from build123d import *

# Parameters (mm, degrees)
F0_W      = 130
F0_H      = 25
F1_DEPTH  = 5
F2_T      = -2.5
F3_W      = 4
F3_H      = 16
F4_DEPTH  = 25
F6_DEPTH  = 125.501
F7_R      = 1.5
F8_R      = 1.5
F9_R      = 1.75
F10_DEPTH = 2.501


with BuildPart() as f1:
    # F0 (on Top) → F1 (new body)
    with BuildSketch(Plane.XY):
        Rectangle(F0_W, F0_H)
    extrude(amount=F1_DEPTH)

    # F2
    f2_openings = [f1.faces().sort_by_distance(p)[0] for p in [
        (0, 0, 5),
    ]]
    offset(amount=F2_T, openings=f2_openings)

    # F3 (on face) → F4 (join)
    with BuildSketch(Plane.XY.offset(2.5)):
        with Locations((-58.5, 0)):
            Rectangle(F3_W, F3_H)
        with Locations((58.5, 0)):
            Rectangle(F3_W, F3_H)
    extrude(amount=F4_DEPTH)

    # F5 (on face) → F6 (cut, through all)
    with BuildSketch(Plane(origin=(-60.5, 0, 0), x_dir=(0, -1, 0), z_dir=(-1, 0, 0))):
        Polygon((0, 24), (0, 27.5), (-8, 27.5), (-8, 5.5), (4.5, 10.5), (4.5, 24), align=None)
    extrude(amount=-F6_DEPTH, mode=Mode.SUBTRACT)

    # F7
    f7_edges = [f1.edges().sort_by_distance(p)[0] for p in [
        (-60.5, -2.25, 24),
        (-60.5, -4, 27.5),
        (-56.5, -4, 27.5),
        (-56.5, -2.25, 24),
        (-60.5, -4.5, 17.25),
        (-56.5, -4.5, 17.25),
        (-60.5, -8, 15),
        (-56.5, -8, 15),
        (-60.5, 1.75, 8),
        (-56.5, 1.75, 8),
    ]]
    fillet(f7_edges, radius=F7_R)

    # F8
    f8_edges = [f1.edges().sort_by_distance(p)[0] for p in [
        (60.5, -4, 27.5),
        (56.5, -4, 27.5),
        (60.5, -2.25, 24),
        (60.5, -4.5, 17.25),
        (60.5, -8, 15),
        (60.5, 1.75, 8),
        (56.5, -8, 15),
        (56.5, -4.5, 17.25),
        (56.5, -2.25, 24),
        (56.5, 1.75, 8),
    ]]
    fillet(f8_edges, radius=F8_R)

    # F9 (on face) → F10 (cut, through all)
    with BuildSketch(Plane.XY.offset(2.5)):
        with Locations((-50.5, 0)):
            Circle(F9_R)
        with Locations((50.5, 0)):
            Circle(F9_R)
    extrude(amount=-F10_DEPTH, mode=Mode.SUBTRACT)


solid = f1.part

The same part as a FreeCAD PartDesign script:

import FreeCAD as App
import Part
import Sketcher
from FreeCAD import Vector


def edges_at(feature, points):
    """Names of the edges that pass closest to the given points."""
    edges = feature.Shape.Edges
    near = lambda p: min(range(len(edges)), key=lambda i: edges[i].distToShape(Part.Vertex(*p))[0])
    return sorted({f"Edge{near(p) + 1}" for p in points})


def faces_at(feature, points):
    """Names of the faces that lie closest to the given points."""
    faces = feature.Shape.Faces
    near = lambda p: min(range(len(faces)), key=lambda i: faces[i].distToShape(Part.Vertex(*p))[0])
    return sorted({f"Face{near(p) + 1}" for p in points})

doc = App.newDocument("Part")
body = doc.addObject("PartDesign::Body", "Body")

# Sketch on XY plane
sketch1 = body.newObject("Sketcher::SketchObject", "Sketch")
sketch1.AttachmentSupport = (doc.getObject("XY_Plane"), [""])
sketch1.MapMode = "FlatFace"
sketch1.addGeometry([
    Part.LineSegment(Vector(-65, 12, 0), Vector(-65, -12, 0)),
    Part.LineSegment(Vector(-65, -12, 0), Vector(65, -12, 0)),
    Part.LineSegment(Vector(65, -12, 0), Vector(65, 12, 0)),
    Part.LineSegment(Vector(65, 12, 0), Vector(-65, 12, 0)),
], False)
sketch1.addConstraint([
    Sketcher.Constraint("Coincident", 0, 2, 1, 1),
    Sketcher.Constraint("Coincident", 1, 2, 2, 1),
    Sketcher.Constraint("Coincident", 2, 2, 3, 1),
    Sketcher.Constraint("Coincident", 3, 2, 0, 1),
    Sketcher.Constraint("Vertical", 0),
    Sketcher.Constraint("Horizontal", 1),
    Sketcher.Constraint("Vertical", 2),
    Sketcher.Constraint("Horizontal", 3),
    Sketcher.Constraint("Symmetric", 0, 2, 2, 2, -1, 1),
    Sketcher.Constraint("DistanceX", 1, 1, 1, 2, 130.0),
    Sketcher.Constraint("DistanceY", 0, 2, 0, 1, 25.0),
])
pad1 = body.newObject("PartDesign::Pad", "Pad")
pad1.Profile = sketch1
pad1.Length = 5
doc.recompute()

thickness = body.newObject("PartDesign::Thickness", "Thickness")
thickness.Base = (pad1, faces_at(pad1, [(0, 0, 5)]))
thickness.Value = 2.5
thickness.Reversed = True
thickness.Join = "Arc"

# Sketch on XY plane
sketch2 = body.newObject("Sketcher::SketchObject", "Sketch001")
sketch2.AttachmentSupport = (doc.getObject("XY_Plane"), [""])
sketch2.MapMode = "FlatFace"
sketch2.AttachmentOffset = App.Placement(Vector(0, 0, 2.5), App.Rotation())
sketch2.addGeometry([
    Part.LineSegment(Vector(-60.5, 8, 0), Vector(-60.5, -8, 0)),  # 0
    Part.LineSegment(Vector(-60.5, -8, 0), Vector(-56.5, -8, 0)),  # 1
    Part.LineSegment(Vector(-56.5, -8, 0), Vector(-56.5, 8, 0)),  # 2
    Part.LineSegment(Vector(-56.5, 8, 0), Vector(-60.5, 8, 0)),  # 3
    Part.LineSegment(Vector(56.5, 8, 0), Vector(56.5, -8, 0)),  # 4
    Part.LineSegment(Vector(56.5, -8, 0), Vector(60.5, -8, 0)),  # 5
    Part.LineSegment(Vector(60.5, -8, 0), Vector(60.5, 8, 0)),  # 6
    Part.LineSegment(Vector(60.5, 8, 0), Vector(56.5, 8, 0)),  # 7
], False)
sketch2.addConstraint([
    Sketcher.Constraint("Coincident", 0, 2, 1, 1),
    Sketcher.Constraint("Coincident", 1, 2, 2, 1),
    Sketcher.Constraint("Coincident", 2, 2, 3, 1),
    Sketcher.Constraint("Coincident", 3, 2, 0, 1),
    Sketcher.Constraint("Coincident", 4, 2, 5, 1),
    Sketcher.Constraint("Coincident", 5, 2, 6, 1),
    Sketcher.Constraint("Coincident", 6, 2, 7, 1),
    Sketcher.Constraint("Coincident", 7, 2, 4, 1),
    Sketcher.Constraint("Vertical", 0),
    Sketcher.Constraint("Horizontal", 1),
    Sketcher.Constraint("Vertical", 2),
    Sketcher.Constraint("Horizontal", 3),
    Sketcher.Constraint("Vertical", 4),
    Sketcher.Constraint("Horizontal", 5),
    Sketcher.Constraint("Vertical", 6),
    Sketcher.Constraint("Horizontal", 7),
    Sketcher.Constraint("Symmetric", 2, 2, 4, 2, -1, 1),
    Sketcher.Constraint("Symmetric", 0, 2, 6, 2, -1, 1),
    Sketcher.Constraint("Horizontal", 1, 2, 4, 2),
    Sketcher.Constraint("DistanceX", 1, 1, 1, 2, 4.0),
    Sketcher.Constraint("DistanceY", 0, 2, 0, 1, 16.0),
    Sketcher.Constraint("DistanceX", 1, 2, 4, 2, 113.0),
])
pad2 = body.newObject("PartDesign::Pad", "Pad001")
pad2.Profile = sketch2
pad2.Length = 25

# Sketch on YZ plane
sketch3 = body.newObject("Sketcher::SketchObject", "Sketch002")
sketch3.AttachmentSupport = (doc.getObject("YZ_Plane"), [""])
sketch3.MapMode = "FlatFace"
sketch3.AttachmentOffset = App.Placement(Vector(0, 0, -60.5), App.Rotation())
sketch3.addGeometry([
    Part.LineSegment(Vector(0, 24, 0), Vector(0, 27.5, 0)),  # 0
    Part.LineSegment(Vector(0, 27.5, 0), Vector(8, 27.5, 0)),  # 1
    Part.LineSegment(Vector(8, 27.5, 0), Vector(8, 5.5, 0)),  # 2
    Part.LineSegment(Vector(8, 5.5, 0), Vector(-4.5, 10.5, 0)),  # 3
    Part.LineSegment(Vector(-4.5, 10.5, 0), Vector(-4.5, 24, 0)),  # 4
    Part.LineSegment(Vector(-4.5, 24, 0), Vector(0, 24, 0)),  # 5
], False)
sketch3.addConstraint([
    Sketcher.Constraint("Coincident", 0, 2, 1, 1),
    Sketcher.Constraint("Coincident", 1, 2, 2, 1),
    Sketcher.Constraint("Coincident", 2, 2, 3, 1),
    Sketcher.Constraint("Coincident", 3, 2, 4, 1),
    Sketcher.Constraint("Coincident", 4, 2, 5, 1),
    Sketcher.Constraint("Coincident", 5, 2, 0, 1),
    Sketcher.Constraint("Vertical", 0),
    Sketcher.Constraint("Horizontal", 1),
    Sketcher.Constraint("Vertical", 2),
    Sketcher.Constraint("Vertical", 4),
    Sketcher.Constraint("Horizontal", 5),
    Sketcher.Constraint("PointOnObject", 0, 2, -2),
    Sketcher.Constraint("DistanceX", 1, 1, 1, 2, 8.0),
    Sketcher.Constraint("DistanceY", 2, 2, 2, 1, 22.0),
    Sketcher.Constraint("DistanceX", 5, 1, 5, 2, 4.5),
    Sketcher.Constraint("DistanceY", 0, 1, 0, 2, 3.5),
    Sketcher.Constraint("DistanceY", 4, 1, 4, 2, 13.5),
    Sketcher.Constraint("DistanceY", -1, 1, 4, 2, 24.0),
])
pocket1 = body.newObject("PartDesign::Pocket", "Pocket")
pocket1.Profile = sketch3
pocket1.Type = "ThroughAll"
pocket1.Reversed = True
doc.recompute()

fillet = body.newObject("PartDesign::Fillet", "Fillet")
fillet.Base = (pocket1, edges_at(pocket1, [
    (-60.5, -2.25, 24),
    (-60.5, -4, 27.5),
    (-56.5, -4, 27.5),
    (-56.5, -2.25, 24),
    (-60.5, -4.5, 17.25),
    (-56.5, -4.5, 17.25),
    (-60.5, -8, 15),
    (-56.5, -8, 15),
    (-60.5, 1.75, 8),
    (-56.5, 1.75, 8),
]))
fillet.Radius = 1.5
doc.recompute()

fillet2 = body.newObject("PartDesign::Fillet", "Fillet001")
fillet2.Base = (fillet, edges_at(fillet, [
    (60.5, -4, 27.5),
    (56.5, -4, 27.5),
    (60.5, -2.25, 24),
    (60.5, -4.5, 17.25),
    (60.5, -8, 15),
    (60.5, 1.75, 8),
    (56.5, -8, 15),
    (56.5, -4.5, 17.25),
    (56.5, -2.25, 24),
    (56.5, 1.75, 8),
]))
fillet2.Radius = 1.5

# Sketch on XY plane
sketch4 = body.newObject("Sketcher::SketchObject", "Sketch003")
sketch4.AttachmentSupport = (doc.getObject("XY_Plane"), [""])
sketch4.MapMode = "FlatFace"
sketch4.AttachmentOffset = App.Placement(Vector(0, 0, 2.5), App.Rotation())
sketch4.addGeometry([
    Part.Circle(Vector(-50.5, 0, 0), Vector(0, 0, 1), 1.8),
    Part.Circle(Vector(50.5, 0, 0), Vector(0, 0, 1), 1.8),
], False)
sketch4.addConstraint([
    Sketcher.Constraint("Equal", 0, 1),
    Sketcher.Constraint("Symmetric", 0, 3, 1, 3, -1, 1),
    Sketcher.Constraint("PointOnObject", 0, 3, -1),
    Sketcher.Constraint("Diameter", 0, 3.5),
    Sketcher.Constraint("DistanceX", 0, 3, 1, 3, 101.0),
])
pocket2 = body.newObject("PartDesign::Pocket", "Pocket001")
pocket2.Profile = sketch4
pocket2.Type = "ThroughAll"

doc.recompute()
